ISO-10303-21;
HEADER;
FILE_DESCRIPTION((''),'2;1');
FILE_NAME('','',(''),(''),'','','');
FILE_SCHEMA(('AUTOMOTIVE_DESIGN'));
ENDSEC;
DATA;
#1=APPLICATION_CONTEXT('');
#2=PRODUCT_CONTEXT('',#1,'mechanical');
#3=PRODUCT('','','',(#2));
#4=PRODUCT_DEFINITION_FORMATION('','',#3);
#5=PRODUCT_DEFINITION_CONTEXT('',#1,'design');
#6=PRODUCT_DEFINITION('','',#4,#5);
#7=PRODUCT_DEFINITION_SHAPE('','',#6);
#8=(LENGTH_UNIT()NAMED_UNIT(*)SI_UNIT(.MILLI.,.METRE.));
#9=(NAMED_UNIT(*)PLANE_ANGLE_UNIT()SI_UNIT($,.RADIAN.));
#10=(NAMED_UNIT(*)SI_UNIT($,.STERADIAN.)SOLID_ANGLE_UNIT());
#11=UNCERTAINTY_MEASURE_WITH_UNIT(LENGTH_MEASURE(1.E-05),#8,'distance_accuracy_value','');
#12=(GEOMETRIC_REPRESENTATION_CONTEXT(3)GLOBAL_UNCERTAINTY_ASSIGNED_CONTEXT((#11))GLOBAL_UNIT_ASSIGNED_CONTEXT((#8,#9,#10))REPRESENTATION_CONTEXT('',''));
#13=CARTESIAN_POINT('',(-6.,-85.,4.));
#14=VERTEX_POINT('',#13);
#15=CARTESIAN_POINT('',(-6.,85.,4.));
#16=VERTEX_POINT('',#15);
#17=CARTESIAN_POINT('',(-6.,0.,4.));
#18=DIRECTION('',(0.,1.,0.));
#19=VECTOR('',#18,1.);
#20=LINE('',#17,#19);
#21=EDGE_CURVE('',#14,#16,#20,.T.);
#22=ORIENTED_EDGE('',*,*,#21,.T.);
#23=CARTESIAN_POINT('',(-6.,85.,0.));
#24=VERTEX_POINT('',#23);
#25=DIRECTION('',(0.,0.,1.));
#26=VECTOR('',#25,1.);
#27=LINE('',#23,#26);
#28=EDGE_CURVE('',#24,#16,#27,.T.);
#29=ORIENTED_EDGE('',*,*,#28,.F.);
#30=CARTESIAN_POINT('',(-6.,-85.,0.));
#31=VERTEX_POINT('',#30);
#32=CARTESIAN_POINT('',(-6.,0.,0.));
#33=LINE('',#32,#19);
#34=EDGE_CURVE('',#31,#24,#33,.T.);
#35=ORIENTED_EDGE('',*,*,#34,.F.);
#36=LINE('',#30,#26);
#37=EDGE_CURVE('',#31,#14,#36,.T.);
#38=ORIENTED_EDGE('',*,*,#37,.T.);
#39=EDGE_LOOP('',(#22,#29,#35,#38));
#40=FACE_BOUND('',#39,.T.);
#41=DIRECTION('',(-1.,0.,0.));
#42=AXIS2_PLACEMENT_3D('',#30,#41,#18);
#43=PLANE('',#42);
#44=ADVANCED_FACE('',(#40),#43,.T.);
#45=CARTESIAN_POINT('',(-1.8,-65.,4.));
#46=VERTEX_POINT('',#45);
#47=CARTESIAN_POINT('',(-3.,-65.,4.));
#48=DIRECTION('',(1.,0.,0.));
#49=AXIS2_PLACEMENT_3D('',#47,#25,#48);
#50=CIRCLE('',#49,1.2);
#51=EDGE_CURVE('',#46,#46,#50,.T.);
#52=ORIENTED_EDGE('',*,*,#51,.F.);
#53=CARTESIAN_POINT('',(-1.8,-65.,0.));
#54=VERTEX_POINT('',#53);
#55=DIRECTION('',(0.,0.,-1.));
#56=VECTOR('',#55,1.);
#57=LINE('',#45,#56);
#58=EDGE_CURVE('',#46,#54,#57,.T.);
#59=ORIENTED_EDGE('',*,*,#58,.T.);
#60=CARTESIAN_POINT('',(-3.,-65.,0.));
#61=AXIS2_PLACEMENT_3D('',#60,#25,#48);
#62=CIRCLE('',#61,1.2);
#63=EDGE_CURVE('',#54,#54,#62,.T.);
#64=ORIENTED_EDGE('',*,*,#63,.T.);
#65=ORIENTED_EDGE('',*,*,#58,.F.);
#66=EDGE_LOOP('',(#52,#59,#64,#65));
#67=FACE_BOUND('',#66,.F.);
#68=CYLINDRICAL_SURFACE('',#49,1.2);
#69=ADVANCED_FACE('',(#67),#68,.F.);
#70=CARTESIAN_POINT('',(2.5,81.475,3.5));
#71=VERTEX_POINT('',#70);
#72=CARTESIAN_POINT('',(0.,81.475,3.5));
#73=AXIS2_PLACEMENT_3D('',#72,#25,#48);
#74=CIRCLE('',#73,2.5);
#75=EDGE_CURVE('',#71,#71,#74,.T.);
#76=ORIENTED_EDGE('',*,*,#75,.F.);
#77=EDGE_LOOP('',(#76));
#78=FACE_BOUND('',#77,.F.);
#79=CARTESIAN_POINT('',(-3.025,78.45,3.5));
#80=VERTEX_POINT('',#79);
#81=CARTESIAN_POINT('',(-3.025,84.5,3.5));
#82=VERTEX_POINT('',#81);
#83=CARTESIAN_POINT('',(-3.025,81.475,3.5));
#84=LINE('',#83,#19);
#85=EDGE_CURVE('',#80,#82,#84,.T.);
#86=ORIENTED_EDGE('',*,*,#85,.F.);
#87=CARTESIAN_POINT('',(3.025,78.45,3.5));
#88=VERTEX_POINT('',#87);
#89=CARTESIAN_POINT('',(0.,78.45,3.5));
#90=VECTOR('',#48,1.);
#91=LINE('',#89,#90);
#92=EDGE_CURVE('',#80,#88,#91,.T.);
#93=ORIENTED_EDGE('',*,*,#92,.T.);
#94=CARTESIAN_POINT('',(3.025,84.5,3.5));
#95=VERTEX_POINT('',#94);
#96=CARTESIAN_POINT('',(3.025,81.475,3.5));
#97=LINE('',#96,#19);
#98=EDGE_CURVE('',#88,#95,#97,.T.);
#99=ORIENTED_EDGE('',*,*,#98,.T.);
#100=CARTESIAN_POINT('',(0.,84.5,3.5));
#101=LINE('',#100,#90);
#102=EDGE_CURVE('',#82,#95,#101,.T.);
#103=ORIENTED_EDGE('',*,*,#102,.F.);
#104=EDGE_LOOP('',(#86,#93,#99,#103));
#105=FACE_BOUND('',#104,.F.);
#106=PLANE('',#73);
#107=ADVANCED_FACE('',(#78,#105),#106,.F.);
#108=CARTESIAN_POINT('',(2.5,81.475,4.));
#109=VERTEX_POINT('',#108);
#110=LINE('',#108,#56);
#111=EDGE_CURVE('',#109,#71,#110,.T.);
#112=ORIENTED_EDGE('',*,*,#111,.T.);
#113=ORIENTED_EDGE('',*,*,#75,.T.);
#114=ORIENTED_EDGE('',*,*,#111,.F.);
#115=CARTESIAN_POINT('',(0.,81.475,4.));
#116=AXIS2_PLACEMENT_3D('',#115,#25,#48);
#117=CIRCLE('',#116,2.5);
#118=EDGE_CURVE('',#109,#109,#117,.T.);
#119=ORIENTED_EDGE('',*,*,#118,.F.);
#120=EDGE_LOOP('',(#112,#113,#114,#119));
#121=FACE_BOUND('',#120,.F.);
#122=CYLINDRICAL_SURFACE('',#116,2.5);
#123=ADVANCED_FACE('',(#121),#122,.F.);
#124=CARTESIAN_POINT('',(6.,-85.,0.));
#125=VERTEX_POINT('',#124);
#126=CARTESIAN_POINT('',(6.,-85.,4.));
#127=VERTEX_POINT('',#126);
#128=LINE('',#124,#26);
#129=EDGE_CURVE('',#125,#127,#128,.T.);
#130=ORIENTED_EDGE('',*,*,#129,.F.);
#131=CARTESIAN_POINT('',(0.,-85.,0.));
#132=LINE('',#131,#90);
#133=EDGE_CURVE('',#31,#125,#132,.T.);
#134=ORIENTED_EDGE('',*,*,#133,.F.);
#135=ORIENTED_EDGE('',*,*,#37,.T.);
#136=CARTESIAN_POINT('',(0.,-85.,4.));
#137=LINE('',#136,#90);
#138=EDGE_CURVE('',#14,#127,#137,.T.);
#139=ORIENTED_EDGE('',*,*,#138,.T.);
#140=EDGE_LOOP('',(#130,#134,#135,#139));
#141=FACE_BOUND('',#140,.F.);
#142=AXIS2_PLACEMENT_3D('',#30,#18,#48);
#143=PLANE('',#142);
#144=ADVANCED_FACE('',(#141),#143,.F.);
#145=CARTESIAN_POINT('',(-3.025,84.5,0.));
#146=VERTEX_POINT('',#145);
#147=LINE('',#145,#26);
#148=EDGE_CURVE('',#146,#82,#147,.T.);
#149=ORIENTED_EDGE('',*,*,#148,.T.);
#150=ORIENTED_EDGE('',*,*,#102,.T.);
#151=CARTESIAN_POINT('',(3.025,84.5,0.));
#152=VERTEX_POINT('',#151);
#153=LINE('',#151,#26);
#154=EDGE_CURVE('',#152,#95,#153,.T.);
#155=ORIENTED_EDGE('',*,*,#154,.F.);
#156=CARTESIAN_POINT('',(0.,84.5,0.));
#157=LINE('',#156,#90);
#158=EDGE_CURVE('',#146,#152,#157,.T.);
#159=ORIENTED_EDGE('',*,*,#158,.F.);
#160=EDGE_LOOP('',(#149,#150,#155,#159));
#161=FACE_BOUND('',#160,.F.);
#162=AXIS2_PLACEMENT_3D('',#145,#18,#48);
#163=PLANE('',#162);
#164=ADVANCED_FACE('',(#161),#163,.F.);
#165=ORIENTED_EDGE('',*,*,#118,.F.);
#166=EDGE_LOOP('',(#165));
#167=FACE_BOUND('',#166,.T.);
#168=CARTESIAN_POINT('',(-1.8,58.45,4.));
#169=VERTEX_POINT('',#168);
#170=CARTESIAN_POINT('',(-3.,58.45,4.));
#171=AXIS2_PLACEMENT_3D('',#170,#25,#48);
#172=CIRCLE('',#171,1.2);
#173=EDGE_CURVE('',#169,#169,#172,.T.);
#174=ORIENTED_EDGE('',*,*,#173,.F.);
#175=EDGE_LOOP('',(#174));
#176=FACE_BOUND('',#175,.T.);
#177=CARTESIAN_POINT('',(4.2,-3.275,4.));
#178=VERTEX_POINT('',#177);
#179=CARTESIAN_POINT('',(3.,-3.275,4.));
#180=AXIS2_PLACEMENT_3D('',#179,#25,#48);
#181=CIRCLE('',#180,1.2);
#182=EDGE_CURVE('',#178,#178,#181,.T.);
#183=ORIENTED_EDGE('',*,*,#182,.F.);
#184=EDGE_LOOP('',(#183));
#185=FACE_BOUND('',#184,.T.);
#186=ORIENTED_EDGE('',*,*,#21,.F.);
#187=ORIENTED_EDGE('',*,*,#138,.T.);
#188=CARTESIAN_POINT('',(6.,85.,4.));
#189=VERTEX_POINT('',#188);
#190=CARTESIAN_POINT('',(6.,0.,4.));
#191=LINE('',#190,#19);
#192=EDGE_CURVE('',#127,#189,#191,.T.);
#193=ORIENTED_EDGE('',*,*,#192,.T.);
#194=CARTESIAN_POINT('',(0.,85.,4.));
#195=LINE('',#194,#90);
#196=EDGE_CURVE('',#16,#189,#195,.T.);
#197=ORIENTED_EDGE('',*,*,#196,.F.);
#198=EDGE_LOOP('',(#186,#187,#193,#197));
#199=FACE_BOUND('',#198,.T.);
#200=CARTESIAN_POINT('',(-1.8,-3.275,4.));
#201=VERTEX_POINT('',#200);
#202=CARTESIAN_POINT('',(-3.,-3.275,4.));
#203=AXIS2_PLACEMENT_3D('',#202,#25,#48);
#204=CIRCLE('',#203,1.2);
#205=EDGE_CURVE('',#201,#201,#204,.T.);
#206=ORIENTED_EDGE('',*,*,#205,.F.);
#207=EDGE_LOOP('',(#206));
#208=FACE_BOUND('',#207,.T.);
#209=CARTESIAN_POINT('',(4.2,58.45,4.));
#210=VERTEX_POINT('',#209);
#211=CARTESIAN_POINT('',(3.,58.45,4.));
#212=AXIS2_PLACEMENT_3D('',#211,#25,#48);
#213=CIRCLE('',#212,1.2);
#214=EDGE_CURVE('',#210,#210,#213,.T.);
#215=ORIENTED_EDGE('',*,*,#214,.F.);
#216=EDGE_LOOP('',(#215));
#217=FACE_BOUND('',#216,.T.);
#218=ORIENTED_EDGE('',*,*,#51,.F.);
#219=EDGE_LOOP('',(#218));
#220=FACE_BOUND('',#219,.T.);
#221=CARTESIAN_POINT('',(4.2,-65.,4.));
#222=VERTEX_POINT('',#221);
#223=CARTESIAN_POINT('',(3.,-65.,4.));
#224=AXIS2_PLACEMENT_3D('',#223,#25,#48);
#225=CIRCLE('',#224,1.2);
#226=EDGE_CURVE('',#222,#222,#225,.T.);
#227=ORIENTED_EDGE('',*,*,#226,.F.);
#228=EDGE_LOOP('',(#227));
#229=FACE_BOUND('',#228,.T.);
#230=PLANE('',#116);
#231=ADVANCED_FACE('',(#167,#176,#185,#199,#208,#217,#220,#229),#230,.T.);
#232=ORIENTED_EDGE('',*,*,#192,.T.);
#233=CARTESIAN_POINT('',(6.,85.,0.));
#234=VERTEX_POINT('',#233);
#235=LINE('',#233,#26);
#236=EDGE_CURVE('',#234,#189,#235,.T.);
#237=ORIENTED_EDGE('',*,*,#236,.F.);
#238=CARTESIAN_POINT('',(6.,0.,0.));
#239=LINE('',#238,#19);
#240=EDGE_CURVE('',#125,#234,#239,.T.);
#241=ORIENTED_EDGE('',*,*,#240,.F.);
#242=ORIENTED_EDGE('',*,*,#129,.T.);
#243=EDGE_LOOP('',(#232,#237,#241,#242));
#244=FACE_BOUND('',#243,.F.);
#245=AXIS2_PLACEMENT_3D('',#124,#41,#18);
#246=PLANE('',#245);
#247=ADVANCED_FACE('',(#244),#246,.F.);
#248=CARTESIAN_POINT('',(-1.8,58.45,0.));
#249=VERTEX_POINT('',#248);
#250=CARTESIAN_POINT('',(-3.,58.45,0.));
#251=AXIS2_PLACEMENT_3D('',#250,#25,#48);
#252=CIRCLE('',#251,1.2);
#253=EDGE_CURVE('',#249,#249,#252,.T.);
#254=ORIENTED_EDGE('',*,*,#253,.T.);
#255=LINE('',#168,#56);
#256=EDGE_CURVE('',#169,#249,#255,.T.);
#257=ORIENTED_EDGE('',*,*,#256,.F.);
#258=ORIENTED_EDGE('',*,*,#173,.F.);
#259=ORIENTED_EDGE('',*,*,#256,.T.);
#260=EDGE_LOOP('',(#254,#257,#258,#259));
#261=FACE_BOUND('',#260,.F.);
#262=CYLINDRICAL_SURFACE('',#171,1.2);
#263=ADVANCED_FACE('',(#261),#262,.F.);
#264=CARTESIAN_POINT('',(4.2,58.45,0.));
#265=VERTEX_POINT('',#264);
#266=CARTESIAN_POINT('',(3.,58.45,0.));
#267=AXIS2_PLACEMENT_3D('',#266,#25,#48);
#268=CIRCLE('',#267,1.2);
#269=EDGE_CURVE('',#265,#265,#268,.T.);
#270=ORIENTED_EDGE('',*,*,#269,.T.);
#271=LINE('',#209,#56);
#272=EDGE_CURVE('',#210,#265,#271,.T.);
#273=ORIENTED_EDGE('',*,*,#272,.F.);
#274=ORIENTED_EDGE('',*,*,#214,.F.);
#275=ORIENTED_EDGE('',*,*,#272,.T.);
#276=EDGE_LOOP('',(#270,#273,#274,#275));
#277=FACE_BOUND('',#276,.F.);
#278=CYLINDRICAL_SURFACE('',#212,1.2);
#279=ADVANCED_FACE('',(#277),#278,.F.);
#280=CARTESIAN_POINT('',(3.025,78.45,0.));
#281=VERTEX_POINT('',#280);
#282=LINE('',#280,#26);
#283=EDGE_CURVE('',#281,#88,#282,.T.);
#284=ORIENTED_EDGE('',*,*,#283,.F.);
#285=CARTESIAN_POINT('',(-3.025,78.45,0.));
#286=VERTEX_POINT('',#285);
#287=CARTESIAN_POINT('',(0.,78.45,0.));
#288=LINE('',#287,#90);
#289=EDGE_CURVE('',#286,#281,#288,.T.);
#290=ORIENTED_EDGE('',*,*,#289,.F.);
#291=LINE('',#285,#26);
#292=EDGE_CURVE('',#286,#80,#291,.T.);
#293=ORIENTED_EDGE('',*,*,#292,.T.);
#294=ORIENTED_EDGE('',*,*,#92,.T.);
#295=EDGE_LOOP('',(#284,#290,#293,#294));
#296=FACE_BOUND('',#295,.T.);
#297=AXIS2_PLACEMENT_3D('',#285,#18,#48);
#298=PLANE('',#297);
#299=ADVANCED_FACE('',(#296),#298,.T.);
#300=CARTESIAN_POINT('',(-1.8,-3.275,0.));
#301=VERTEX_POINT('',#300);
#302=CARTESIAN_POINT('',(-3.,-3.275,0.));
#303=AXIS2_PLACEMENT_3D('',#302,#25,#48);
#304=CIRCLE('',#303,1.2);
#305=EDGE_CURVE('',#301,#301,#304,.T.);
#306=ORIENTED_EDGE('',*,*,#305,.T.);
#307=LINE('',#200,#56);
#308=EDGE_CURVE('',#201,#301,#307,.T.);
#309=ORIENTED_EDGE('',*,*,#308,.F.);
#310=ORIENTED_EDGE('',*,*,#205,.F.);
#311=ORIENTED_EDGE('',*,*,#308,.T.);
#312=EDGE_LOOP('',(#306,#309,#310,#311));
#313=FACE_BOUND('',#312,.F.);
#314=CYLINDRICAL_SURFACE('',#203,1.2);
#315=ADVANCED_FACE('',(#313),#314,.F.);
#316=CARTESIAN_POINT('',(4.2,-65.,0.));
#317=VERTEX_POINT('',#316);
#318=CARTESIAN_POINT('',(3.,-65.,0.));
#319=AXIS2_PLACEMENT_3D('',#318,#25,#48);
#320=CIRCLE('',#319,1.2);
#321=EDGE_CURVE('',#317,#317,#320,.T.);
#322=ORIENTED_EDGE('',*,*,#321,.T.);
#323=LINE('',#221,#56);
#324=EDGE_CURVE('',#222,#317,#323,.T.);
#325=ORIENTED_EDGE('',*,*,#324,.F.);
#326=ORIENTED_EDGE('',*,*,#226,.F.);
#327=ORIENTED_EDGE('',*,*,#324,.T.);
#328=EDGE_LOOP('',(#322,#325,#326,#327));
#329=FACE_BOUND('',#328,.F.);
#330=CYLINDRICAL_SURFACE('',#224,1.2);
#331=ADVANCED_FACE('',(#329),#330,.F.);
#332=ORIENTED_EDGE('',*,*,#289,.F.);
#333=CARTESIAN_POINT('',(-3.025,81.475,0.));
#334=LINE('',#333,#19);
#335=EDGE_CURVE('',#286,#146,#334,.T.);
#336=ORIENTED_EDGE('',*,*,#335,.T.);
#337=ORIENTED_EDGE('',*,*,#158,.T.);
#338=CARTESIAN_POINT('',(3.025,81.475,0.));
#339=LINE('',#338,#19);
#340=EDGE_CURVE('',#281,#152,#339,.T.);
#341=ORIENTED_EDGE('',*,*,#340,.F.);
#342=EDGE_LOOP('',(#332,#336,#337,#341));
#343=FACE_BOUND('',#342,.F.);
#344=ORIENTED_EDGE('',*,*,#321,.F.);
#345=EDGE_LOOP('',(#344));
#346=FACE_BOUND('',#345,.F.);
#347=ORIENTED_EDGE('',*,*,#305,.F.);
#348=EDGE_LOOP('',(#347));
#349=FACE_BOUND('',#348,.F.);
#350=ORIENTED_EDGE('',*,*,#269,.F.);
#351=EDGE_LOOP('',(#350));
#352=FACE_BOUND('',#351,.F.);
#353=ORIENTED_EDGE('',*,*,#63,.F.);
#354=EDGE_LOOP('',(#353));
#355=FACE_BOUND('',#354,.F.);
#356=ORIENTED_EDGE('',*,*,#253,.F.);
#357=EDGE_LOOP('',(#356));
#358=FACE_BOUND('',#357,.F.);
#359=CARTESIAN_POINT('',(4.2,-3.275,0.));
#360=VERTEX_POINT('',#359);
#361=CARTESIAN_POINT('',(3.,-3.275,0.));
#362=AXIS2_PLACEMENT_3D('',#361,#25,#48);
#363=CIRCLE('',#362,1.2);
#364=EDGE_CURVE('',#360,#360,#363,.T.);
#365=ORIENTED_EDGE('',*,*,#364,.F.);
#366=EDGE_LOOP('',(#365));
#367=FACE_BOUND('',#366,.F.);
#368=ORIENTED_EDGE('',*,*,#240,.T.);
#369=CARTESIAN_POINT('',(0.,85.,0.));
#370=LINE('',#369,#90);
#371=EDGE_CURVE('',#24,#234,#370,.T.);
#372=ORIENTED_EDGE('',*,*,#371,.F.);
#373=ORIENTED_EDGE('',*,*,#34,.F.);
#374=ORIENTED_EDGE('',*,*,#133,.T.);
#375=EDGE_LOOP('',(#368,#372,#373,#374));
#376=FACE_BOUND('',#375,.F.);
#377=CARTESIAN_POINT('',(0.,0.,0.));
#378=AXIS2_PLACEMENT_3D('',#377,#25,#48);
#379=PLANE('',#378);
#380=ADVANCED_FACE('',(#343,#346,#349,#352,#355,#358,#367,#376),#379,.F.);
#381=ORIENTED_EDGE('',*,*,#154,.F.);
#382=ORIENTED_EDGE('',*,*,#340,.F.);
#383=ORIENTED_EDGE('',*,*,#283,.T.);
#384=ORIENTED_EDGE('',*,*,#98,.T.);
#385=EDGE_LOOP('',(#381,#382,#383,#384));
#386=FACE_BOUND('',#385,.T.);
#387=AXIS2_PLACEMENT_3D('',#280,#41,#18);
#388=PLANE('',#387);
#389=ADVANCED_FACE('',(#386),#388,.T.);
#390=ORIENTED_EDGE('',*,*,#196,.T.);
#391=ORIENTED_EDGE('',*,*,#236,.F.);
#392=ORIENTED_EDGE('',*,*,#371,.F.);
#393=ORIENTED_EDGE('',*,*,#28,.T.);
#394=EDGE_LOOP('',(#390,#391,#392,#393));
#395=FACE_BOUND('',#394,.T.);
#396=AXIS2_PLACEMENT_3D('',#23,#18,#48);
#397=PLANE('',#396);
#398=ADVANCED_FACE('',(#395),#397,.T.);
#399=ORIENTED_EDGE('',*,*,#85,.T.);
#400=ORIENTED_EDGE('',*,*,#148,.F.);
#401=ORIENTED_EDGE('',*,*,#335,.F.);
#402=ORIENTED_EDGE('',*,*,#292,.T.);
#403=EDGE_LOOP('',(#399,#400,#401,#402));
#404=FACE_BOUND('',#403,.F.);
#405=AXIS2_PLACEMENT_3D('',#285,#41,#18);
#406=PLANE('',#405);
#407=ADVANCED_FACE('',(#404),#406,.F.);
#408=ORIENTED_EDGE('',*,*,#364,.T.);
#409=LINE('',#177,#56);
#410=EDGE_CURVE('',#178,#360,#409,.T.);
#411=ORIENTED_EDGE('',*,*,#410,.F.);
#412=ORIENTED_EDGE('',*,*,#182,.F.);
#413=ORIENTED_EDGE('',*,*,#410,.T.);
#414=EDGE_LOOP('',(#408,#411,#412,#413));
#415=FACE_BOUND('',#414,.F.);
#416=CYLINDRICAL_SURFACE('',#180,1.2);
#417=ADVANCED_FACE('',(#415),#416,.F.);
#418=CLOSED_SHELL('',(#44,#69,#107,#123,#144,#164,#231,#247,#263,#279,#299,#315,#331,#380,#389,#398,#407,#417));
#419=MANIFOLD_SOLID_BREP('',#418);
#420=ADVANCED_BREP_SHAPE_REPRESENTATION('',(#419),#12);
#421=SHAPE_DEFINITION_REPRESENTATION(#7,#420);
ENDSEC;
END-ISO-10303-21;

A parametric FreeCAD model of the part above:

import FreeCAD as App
import Part
import Sketcher
from FreeCAD import Vector
Q = App.Units.Quantity


def add_polygon(sketch, points):
    """Adds a closed chain of lines whose ends are joined by coincident constraints."""
    first, n = sketch.GeometryCount, len(points)
    for a, b in zip(points, points[1:] + points[:1]):
        sketch.addGeometry(Part.LineSegment(App.Vector(*a, 0), App.Vector(*b, 0)), False)
    for i in range(n):
        sketch.addConstraint(Sketcher.Constraint("Coincident", first + i, 2, first + (i + 1) % n, 1))

doc = App.newDocument("Part")
params = doc.addObject("Spreadsheet::Sheet", "Params")
for row, (alias, value) in enumerate([
    ("sketch1_width", "12 mm"),
    ("sketch1_height", "170 mm"),
    ("sketch1_width2", "6.05 mm"),
    ("pad1_length", "4 mm"),
    ("sketch2_width", "6.05 mm"),
    ("pad2_length", "0.5 mm"),
    ("sketch3_diameter", "5 mm"),
    ("pocket1_length", "0.5 mm"),
    ("sketch4_diameter", "2.4 mm"),
    ("pocket2_length", "25 mm"),
], start=1):
    params.set(f"A{row}", alias)
    params.set(f"B{row}", "=" + value)
    params.setAlias(f"B{row}", alias)

body = doc.addObject("PartDesign::Body", "Body")

# Sketch on XY plane
sketch1 = body.newObject("Sketcher::SketchObject", "Sketch")
sketch1.AttachmentSupport = (doc.getObject("XY_Plane"), [""])
sketch1.MapMode = "FlatFace"
add_polygon(sketch1, [(-6, 85), (-6, -85), (6, -85), (6, 85)])  # lines 0-3
add_polygon(sketch1, [(3, 78), (-3, 78), (-3, 84), (3, 84)])  # lines 4-7
sketch1.addConstraint([
    Sketcher.Constraint("Vertical", 0),
    Sketcher.Constraint("Horizontal", 1),
    Sketcher.Constraint("Vertical", 2),
    Sketcher.Constraint("Horizontal", 3),
    Sketcher.Constraint("Horizontal", 4),
    Sketcher.Constraint("Vertical", 5),
    Sketcher.Constraint("Horizontal", 6),
    Sketcher.Constraint("Vertical", 7),
    Sketcher.Constraint("Symmetric", 0, 2, 2, 2, -1, 1),
    Sketcher.Constraint("Equal", 6, 5),
    Sketcher.Constraint("DistanceX", 1, 1, 1, 2, Q("12 mm")),
    Sketcher.Constraint("DistanceY", 0, 2, 0, 1, Q("170 mm")),
    Sketcher.Constraint("DistanceX", 4, 2, 4, 1, Q("6.05 mm")),
    Sketcher.Constraint("DistanceY", -1, 1, 5, 2, Q("84.5 mm")),
    Sketcher.Constraint("DistanceX", 4, 2, -1, 1, Q("3.025 mm")),
])
sketch1.setExpression("Constraints[18]", "Params.sketch1_width")
sketch1.setExpression("Constraints[19]", "Params.sketch1_height")
sketch1.setExpression("Constraints[20]", "Params.sketch1_width2")
pad1 = body.newObject("PartDesign::Pad", "Pad")
pad1.Profile = sketch1
pad1.setExpression("Length", "Params.pad1_length")

# Sketch on XY plane
sketch2 = body.newObject("Sketcher::SketchObject", "Sketch001")
sketch2.AttachmentSupport = (doc.getObject("XY_Plane"), [""])
sketch2.MapMode = "FlatFace"
sketch2.AttachmentOffset = App.Placement(Vector(0, 0, 4), App.Rotation())
add_polygon(sketch2, [(-3, 84), (-3, 78), (3, 78), (3, 84)])  # lines 0-3
sketch2.addConstraint([
    Sketcher.Constraint("Vertical", 0),
    Sketcher.Constraint("Horizontal", 1),
    Sketcher.Constraint("Vertical", 2),
    Sketcher.Constraint("Horizontal", 3),
    Sketcher.Constraint("Equal", 3, 0),
    Sketcher.Constraint("DistanceX", 1, 1, 1, 2, Q("6.05 mm")),
    Sketcher.Constraint("DistanceY", -1, 1, 2, 2, Q("84.5 mm")),
    Sketcher.Constraint("DistanceX", 0, 2, -1, 1, Q("3.025 mm")),
])
sketch2.setExpression("Constraints[9]", "Params.sketch2_width")
pad2 = body.newObject("PartDesign::Pad", "Pad001")
pad2.Profile = sketch2
pad2.setExpression("Length", "Params.pad2_length")
pad2.Reversed = True

# Sketch on XY plane
sketch3 = body.newObject("Sketcher::SketchObject", "Sketch002")
sketch3.AttachmentSupport = (doc.getObject("XY_Plane"), [""])
sketch3.MapMode = "FlatFace"
sketch3.AttachmentOffset = App.Placement(Vector(0, 0, 4), App.Rotation())
sketch3.addGeometry(Part.Circle(Vector(0, 81.5, 0), Vector(0, 0, 1), 2.5), False)
sketch3.addConstraint([
    Sketcher.Constraint("PointOnObject", 0, 3, -2),
    Sketcher.Constraint("Diameter", 0, Q("5 mm")),
    Sketcher.Constraint("DistanceY", -1, 1, 0, 3, Q("81.475 mm")),
])
sketch3.setExpression("Constraints[1]", "Params.sketch3_diameter")
pocket1 = body.newObject("PartDesign::Pocket", "Pocket")
pocket1.Profile = sketch3
pocket1.setExpression("Length", "Params.pocket1_length")

# Sketch on XY plane
sketch4 = body.newObject("Sketcher::SketchObject", "Sketch003")
sketch4.AttachmentSupport = (doc.getObject("XY_Plane"), [""])
sketch4.MapMode = "FlatFace"
sketch4.AttachmentOffset = App.Placement(Vector(0, 0, 4), App.Rotation())
sketch4.addGeometry([
    Part.Circle(Vector(3, 58.5, 0), Vector(0, 0, 1), 1.2),  # 0
    Part.Circle(Vector(-3, 58.5, 0), Vector(0, 0, 1), 1.2),  # 1
    Part.Circle(Vector(3, -3.3, 0), Vector(0, 0, 1), 1.2),  # 2
    Part.Circle(Vector(-3, -3.3, 0), Vector(0, 0, 1), 1.2),  # 3
    Part.Circle(Vector(3, -65, 0), Vector(0, 0, 1), 1.2),  # 4
    Part.Circle(Vector(-3, -65, 0), Vector(0, 0, 1), 1.2),  # 5
], False)
sketch4.addConstraint([
    Sketcher.Constraint("Equal", 0, 1),
    Sketcher.Constraint("Equal", 1, 2),
    Sketcher.Constraint("Equal", 2, 3),
    Sketcher.Constraint("Equal", 3, 4),
    Sketcher.Constraint("Equal", 4, 5),
    Sketcher.Constraint("Symmetric", 0, 3, 1, 3, -2),
    Sketcher.Constraint("Symmetric", 2, 3, 3, 3, -2),
    Sketcher.Constraint("Symmetric", 4, 3, 5, 3, -2),
    Sketcher.Constraint("Vertical", 0, 3, 2, 3),
    Sketcher.Constraint("Vertical", 2, 3, 4, 3),
    Sketcher.Constraint("Diameter", 0, Q("2.4 mm")),
    Sketcher.Constraint("DistanceX", -1, 1, 0, 3, Q("3 mm")),
    Sketcher.Constraint("DistanceY", 4, 3, -1, 1, Q("65 mm")),
    Sketcher.Constraint("DistanceY", -1, 1, 0, 3, Q("58.45 mm")),
    Sketcher.Constraint("DistanceY", 2, 3, -1, 1, Q("3.275 mm")),
])
sketch4.setExpression("Constraints[10]", "Params.sketch4_diameter")
pocket2 = body.newObject("PartDesign::Pocket", "Pocket001")
pocket2.Profile = sketch4
pocket2.setExpression("Length", "Params.pocket2_length")

doc.recompute()
